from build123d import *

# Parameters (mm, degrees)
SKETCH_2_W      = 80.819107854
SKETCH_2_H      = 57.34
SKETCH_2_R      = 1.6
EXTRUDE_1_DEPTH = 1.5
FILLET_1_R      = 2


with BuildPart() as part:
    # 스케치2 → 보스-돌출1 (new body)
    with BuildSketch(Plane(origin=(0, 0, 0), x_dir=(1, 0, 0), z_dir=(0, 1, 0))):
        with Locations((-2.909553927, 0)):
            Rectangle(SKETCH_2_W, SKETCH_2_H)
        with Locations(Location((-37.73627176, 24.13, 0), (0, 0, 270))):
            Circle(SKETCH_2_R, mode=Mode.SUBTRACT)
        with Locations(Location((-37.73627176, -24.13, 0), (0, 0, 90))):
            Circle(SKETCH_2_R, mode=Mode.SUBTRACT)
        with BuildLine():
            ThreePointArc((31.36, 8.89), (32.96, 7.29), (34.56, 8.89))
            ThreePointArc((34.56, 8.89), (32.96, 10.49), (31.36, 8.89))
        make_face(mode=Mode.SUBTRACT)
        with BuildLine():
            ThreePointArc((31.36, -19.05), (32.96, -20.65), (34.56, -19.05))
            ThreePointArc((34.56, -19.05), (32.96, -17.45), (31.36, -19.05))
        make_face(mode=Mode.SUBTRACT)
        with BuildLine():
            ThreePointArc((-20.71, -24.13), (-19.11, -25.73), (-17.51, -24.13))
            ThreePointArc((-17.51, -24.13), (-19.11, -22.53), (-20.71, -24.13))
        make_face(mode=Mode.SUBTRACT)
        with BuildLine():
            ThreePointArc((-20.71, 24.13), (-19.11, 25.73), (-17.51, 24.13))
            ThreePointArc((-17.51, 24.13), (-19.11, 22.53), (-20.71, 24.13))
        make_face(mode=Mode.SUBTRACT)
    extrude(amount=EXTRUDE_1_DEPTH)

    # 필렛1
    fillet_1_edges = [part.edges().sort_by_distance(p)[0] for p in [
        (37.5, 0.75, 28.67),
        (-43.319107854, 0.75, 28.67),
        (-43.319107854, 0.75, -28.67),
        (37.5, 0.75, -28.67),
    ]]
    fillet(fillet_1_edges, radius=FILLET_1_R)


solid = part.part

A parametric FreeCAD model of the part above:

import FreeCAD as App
import Part
import Sketcher
from FreeCAD import Vector
Q = App.Units.Quantity


def edges_at(feature, points):
    """Names of the edges that pass closest to the given points."""
    edges = feature.Shape.Edges
    near = lambda p: min(range(len(edges)), key=lambda i: edges[i].distToShape(Part.Vertex(*p))[0])
    return sorted({f"Edge{near(p) + 1}" for p in points})


def add_polygon(sketch, points):
    """Adds a closed chain of lines whose ends are joined by coincident constraints."""
    first, n = sketch.GeometryCount, len(points)
    for a, b in zip(points, points[1:] + points[:1]):
        sketch.addGeometry(Part.LineSegment(App.Vector(*a, 0), App.Vector(*b, 0)), False)
    for i in range(n):
        sketch.addConstraint(Sketcher.Constraint("Coincident", first + i, 2, first + (i + 1) % n, 1))

doc = App.newDocument("Part")
params = doc.addObject("Spreadsheet::Sheet", "Params")
for row, (alias, value) in enumerate([
    ("sketch1_diameter", "3.2 mm"),
    ("sketch1_height", "57.34 mm"),
    ("pad1_length", "1.5 mm"),
    ("fillet_radius", "2 mm"),
], start=1):
    params.set(f"A{row}", alias)
    params.set(f"B{row}", "=" + value)
    params.setAlias(f"B{row}", alias)

body = doc.addObject("PartDesign::Body", "Body")

sketch1 = doc.addObject("Sketcher::SketchObject", "Sketch")
body.addObject(sketch1)
sketch1.AttachmentSupport = (doc.XZ_Plane, [""])
sketch1.MapMode = "FlatFace"
add_polygon(sketch1, [(-43.3, -28.7), (-43.3, 28.7), (37.5, 28.7), (37.5, -28.7)])
sketch1.addGeometry(Part.Circle(Vector(-37.7, 24.1, 0), Vector(0, 0, 1), 1.6), False)
sketch1.addGeometry(Part.Circle(Vector(-19.1, 24.1, 0), Vector(0, 0, 1), 1.6), False)
sketch1.addGeometry(Part.Circle(Vector(33, 19.1, 0), Vector(0, 0, 1), 1.6), False)
sketch1.addGeometry(Part.Circle(Vector(-37.7, -24.1, 0), Vector(0, 0, 1), 1.6), False)
sketch1.addGeometry(Part.Circle(Vector(-19.1, -24.1, 0), Vector(0, 0, 1), 1.6), False)
sketch1.addGeometry(Part.Circle(Vector(33, -8.9, 0), Vector(0, 0, 1), 1.6), False)
sketch1.addConstraint(Sketcher.Constraint("Vertical", 0))
sketch1.addConstraint(Sketcher.Constraint("Horizontal", 1))
sketch1.addConstraint(Sketcher.Constraint("Vertical", 2))
sketch1.addConstraint(Sketcher.Constraint("Horizontal", 3))
sketch1.addConstraint(Sketcher.Constraint("Equal", 4, 5))
sketch1.addConstraint(Sketcher.Constraint("Equal", 5, 6))
sketch1.addConstraint(Sketcher.Constraint("Equal", 6, 7))
sketch1.addConstraint(Sketcher.Constraint("Equal", 7, 8))
sketch1.addConstraint(Sketcher.Constraint("Equal", 8, 9))
sketch1.addConstraint(Sketcher.Constraint("Symmetric", 4, 3, 7, 3, -1))
sketch1.addConstraint(Sketcher.Constraint("Symmetric", 5, 3, 8, 3, -1))
sketch1.addConstraint(Sketcher.Constraint("Horizontal", 4, 3, 5, 3))
sketch1.addConstraint(Sketcher.Constraint("Vertical", 6, 3, 9, 3))
sketch1.addConstraint(Sketcher.Constraint("Diameter", 4, Q("3.2 mm")))
sketch1.addConstraint(Sketcher.Constraint("DistanceY", 0, 1, 0, 2, Q("57.34 mm")))
sketch1.addConstraint(Sketcher.Constraint("DistanceX", -1, 1, 1, 2, Q("37.5 mm")))
sketch1.addConstraint(Sketcher.Constraint("DistanceY", 7, 3, 0, 2, Q("52.8 mm")))
sketch1.addConstraint(Sketcher.Constraint("DistanceY", 3, 2, 4, 3, Q("52.8 mm")))
sketch1.addConstraint(Sketcher.Constraint("DistanceX", 5, 3, -1, 1, Q("19.11 mm")))
sketch1.addConstraint(Sketcher.Constraint("DistanceX", -1, 1, 6, 3, Q("32.96 mm")))
sketch1.addConstraint(Sketcher.Constraint("DistanceY", -1, 1, 6, 3, Q("19.05 mm")))
sketch1.addConstraint(Sketcher.Constraint("DistanceY", 9, 3, -1, 1, Q("8.89 mm")))
sketch1.addConstraint(Sketcher.Constraint("DistanceX", 1, 1, 1, 2, Q("80.819108 mm")))
sketch1.addConstraint(Sketcher.Constraint("DistanceX", 4, 3, -1, 1, Q("37.736272 mm")))
sketch1.setExpression("Constraints[17]", "Params.sketch1_diameter")
sketch1.setExpression("Constraints[18]", "Params.sketch1_height")
pad1 = doc.addObject("PartDesign::Pad", "Pad")
body.addObject(pad1)
pad1.Profile = sketch1
pad1.setExpression("Length", "Params.pad1_length")
pad1.Reversed = True
doc.recompute()

fillet = doc.addObject("PartDesign::Fillet", "Fillet")
body.addObject(fillet)
fillet.Base = (pad1, edges_at(pad1, [
    (37.5, 0.75, 28.67),
    (-43.319, 0.75, 28.67),
    (-43.319, 0.75, -28.67),
    (37.5, 0.75, -28.67),
]))
fillet.setExpression("Radius", "Params.fillet_radius")

doc.recompute()
